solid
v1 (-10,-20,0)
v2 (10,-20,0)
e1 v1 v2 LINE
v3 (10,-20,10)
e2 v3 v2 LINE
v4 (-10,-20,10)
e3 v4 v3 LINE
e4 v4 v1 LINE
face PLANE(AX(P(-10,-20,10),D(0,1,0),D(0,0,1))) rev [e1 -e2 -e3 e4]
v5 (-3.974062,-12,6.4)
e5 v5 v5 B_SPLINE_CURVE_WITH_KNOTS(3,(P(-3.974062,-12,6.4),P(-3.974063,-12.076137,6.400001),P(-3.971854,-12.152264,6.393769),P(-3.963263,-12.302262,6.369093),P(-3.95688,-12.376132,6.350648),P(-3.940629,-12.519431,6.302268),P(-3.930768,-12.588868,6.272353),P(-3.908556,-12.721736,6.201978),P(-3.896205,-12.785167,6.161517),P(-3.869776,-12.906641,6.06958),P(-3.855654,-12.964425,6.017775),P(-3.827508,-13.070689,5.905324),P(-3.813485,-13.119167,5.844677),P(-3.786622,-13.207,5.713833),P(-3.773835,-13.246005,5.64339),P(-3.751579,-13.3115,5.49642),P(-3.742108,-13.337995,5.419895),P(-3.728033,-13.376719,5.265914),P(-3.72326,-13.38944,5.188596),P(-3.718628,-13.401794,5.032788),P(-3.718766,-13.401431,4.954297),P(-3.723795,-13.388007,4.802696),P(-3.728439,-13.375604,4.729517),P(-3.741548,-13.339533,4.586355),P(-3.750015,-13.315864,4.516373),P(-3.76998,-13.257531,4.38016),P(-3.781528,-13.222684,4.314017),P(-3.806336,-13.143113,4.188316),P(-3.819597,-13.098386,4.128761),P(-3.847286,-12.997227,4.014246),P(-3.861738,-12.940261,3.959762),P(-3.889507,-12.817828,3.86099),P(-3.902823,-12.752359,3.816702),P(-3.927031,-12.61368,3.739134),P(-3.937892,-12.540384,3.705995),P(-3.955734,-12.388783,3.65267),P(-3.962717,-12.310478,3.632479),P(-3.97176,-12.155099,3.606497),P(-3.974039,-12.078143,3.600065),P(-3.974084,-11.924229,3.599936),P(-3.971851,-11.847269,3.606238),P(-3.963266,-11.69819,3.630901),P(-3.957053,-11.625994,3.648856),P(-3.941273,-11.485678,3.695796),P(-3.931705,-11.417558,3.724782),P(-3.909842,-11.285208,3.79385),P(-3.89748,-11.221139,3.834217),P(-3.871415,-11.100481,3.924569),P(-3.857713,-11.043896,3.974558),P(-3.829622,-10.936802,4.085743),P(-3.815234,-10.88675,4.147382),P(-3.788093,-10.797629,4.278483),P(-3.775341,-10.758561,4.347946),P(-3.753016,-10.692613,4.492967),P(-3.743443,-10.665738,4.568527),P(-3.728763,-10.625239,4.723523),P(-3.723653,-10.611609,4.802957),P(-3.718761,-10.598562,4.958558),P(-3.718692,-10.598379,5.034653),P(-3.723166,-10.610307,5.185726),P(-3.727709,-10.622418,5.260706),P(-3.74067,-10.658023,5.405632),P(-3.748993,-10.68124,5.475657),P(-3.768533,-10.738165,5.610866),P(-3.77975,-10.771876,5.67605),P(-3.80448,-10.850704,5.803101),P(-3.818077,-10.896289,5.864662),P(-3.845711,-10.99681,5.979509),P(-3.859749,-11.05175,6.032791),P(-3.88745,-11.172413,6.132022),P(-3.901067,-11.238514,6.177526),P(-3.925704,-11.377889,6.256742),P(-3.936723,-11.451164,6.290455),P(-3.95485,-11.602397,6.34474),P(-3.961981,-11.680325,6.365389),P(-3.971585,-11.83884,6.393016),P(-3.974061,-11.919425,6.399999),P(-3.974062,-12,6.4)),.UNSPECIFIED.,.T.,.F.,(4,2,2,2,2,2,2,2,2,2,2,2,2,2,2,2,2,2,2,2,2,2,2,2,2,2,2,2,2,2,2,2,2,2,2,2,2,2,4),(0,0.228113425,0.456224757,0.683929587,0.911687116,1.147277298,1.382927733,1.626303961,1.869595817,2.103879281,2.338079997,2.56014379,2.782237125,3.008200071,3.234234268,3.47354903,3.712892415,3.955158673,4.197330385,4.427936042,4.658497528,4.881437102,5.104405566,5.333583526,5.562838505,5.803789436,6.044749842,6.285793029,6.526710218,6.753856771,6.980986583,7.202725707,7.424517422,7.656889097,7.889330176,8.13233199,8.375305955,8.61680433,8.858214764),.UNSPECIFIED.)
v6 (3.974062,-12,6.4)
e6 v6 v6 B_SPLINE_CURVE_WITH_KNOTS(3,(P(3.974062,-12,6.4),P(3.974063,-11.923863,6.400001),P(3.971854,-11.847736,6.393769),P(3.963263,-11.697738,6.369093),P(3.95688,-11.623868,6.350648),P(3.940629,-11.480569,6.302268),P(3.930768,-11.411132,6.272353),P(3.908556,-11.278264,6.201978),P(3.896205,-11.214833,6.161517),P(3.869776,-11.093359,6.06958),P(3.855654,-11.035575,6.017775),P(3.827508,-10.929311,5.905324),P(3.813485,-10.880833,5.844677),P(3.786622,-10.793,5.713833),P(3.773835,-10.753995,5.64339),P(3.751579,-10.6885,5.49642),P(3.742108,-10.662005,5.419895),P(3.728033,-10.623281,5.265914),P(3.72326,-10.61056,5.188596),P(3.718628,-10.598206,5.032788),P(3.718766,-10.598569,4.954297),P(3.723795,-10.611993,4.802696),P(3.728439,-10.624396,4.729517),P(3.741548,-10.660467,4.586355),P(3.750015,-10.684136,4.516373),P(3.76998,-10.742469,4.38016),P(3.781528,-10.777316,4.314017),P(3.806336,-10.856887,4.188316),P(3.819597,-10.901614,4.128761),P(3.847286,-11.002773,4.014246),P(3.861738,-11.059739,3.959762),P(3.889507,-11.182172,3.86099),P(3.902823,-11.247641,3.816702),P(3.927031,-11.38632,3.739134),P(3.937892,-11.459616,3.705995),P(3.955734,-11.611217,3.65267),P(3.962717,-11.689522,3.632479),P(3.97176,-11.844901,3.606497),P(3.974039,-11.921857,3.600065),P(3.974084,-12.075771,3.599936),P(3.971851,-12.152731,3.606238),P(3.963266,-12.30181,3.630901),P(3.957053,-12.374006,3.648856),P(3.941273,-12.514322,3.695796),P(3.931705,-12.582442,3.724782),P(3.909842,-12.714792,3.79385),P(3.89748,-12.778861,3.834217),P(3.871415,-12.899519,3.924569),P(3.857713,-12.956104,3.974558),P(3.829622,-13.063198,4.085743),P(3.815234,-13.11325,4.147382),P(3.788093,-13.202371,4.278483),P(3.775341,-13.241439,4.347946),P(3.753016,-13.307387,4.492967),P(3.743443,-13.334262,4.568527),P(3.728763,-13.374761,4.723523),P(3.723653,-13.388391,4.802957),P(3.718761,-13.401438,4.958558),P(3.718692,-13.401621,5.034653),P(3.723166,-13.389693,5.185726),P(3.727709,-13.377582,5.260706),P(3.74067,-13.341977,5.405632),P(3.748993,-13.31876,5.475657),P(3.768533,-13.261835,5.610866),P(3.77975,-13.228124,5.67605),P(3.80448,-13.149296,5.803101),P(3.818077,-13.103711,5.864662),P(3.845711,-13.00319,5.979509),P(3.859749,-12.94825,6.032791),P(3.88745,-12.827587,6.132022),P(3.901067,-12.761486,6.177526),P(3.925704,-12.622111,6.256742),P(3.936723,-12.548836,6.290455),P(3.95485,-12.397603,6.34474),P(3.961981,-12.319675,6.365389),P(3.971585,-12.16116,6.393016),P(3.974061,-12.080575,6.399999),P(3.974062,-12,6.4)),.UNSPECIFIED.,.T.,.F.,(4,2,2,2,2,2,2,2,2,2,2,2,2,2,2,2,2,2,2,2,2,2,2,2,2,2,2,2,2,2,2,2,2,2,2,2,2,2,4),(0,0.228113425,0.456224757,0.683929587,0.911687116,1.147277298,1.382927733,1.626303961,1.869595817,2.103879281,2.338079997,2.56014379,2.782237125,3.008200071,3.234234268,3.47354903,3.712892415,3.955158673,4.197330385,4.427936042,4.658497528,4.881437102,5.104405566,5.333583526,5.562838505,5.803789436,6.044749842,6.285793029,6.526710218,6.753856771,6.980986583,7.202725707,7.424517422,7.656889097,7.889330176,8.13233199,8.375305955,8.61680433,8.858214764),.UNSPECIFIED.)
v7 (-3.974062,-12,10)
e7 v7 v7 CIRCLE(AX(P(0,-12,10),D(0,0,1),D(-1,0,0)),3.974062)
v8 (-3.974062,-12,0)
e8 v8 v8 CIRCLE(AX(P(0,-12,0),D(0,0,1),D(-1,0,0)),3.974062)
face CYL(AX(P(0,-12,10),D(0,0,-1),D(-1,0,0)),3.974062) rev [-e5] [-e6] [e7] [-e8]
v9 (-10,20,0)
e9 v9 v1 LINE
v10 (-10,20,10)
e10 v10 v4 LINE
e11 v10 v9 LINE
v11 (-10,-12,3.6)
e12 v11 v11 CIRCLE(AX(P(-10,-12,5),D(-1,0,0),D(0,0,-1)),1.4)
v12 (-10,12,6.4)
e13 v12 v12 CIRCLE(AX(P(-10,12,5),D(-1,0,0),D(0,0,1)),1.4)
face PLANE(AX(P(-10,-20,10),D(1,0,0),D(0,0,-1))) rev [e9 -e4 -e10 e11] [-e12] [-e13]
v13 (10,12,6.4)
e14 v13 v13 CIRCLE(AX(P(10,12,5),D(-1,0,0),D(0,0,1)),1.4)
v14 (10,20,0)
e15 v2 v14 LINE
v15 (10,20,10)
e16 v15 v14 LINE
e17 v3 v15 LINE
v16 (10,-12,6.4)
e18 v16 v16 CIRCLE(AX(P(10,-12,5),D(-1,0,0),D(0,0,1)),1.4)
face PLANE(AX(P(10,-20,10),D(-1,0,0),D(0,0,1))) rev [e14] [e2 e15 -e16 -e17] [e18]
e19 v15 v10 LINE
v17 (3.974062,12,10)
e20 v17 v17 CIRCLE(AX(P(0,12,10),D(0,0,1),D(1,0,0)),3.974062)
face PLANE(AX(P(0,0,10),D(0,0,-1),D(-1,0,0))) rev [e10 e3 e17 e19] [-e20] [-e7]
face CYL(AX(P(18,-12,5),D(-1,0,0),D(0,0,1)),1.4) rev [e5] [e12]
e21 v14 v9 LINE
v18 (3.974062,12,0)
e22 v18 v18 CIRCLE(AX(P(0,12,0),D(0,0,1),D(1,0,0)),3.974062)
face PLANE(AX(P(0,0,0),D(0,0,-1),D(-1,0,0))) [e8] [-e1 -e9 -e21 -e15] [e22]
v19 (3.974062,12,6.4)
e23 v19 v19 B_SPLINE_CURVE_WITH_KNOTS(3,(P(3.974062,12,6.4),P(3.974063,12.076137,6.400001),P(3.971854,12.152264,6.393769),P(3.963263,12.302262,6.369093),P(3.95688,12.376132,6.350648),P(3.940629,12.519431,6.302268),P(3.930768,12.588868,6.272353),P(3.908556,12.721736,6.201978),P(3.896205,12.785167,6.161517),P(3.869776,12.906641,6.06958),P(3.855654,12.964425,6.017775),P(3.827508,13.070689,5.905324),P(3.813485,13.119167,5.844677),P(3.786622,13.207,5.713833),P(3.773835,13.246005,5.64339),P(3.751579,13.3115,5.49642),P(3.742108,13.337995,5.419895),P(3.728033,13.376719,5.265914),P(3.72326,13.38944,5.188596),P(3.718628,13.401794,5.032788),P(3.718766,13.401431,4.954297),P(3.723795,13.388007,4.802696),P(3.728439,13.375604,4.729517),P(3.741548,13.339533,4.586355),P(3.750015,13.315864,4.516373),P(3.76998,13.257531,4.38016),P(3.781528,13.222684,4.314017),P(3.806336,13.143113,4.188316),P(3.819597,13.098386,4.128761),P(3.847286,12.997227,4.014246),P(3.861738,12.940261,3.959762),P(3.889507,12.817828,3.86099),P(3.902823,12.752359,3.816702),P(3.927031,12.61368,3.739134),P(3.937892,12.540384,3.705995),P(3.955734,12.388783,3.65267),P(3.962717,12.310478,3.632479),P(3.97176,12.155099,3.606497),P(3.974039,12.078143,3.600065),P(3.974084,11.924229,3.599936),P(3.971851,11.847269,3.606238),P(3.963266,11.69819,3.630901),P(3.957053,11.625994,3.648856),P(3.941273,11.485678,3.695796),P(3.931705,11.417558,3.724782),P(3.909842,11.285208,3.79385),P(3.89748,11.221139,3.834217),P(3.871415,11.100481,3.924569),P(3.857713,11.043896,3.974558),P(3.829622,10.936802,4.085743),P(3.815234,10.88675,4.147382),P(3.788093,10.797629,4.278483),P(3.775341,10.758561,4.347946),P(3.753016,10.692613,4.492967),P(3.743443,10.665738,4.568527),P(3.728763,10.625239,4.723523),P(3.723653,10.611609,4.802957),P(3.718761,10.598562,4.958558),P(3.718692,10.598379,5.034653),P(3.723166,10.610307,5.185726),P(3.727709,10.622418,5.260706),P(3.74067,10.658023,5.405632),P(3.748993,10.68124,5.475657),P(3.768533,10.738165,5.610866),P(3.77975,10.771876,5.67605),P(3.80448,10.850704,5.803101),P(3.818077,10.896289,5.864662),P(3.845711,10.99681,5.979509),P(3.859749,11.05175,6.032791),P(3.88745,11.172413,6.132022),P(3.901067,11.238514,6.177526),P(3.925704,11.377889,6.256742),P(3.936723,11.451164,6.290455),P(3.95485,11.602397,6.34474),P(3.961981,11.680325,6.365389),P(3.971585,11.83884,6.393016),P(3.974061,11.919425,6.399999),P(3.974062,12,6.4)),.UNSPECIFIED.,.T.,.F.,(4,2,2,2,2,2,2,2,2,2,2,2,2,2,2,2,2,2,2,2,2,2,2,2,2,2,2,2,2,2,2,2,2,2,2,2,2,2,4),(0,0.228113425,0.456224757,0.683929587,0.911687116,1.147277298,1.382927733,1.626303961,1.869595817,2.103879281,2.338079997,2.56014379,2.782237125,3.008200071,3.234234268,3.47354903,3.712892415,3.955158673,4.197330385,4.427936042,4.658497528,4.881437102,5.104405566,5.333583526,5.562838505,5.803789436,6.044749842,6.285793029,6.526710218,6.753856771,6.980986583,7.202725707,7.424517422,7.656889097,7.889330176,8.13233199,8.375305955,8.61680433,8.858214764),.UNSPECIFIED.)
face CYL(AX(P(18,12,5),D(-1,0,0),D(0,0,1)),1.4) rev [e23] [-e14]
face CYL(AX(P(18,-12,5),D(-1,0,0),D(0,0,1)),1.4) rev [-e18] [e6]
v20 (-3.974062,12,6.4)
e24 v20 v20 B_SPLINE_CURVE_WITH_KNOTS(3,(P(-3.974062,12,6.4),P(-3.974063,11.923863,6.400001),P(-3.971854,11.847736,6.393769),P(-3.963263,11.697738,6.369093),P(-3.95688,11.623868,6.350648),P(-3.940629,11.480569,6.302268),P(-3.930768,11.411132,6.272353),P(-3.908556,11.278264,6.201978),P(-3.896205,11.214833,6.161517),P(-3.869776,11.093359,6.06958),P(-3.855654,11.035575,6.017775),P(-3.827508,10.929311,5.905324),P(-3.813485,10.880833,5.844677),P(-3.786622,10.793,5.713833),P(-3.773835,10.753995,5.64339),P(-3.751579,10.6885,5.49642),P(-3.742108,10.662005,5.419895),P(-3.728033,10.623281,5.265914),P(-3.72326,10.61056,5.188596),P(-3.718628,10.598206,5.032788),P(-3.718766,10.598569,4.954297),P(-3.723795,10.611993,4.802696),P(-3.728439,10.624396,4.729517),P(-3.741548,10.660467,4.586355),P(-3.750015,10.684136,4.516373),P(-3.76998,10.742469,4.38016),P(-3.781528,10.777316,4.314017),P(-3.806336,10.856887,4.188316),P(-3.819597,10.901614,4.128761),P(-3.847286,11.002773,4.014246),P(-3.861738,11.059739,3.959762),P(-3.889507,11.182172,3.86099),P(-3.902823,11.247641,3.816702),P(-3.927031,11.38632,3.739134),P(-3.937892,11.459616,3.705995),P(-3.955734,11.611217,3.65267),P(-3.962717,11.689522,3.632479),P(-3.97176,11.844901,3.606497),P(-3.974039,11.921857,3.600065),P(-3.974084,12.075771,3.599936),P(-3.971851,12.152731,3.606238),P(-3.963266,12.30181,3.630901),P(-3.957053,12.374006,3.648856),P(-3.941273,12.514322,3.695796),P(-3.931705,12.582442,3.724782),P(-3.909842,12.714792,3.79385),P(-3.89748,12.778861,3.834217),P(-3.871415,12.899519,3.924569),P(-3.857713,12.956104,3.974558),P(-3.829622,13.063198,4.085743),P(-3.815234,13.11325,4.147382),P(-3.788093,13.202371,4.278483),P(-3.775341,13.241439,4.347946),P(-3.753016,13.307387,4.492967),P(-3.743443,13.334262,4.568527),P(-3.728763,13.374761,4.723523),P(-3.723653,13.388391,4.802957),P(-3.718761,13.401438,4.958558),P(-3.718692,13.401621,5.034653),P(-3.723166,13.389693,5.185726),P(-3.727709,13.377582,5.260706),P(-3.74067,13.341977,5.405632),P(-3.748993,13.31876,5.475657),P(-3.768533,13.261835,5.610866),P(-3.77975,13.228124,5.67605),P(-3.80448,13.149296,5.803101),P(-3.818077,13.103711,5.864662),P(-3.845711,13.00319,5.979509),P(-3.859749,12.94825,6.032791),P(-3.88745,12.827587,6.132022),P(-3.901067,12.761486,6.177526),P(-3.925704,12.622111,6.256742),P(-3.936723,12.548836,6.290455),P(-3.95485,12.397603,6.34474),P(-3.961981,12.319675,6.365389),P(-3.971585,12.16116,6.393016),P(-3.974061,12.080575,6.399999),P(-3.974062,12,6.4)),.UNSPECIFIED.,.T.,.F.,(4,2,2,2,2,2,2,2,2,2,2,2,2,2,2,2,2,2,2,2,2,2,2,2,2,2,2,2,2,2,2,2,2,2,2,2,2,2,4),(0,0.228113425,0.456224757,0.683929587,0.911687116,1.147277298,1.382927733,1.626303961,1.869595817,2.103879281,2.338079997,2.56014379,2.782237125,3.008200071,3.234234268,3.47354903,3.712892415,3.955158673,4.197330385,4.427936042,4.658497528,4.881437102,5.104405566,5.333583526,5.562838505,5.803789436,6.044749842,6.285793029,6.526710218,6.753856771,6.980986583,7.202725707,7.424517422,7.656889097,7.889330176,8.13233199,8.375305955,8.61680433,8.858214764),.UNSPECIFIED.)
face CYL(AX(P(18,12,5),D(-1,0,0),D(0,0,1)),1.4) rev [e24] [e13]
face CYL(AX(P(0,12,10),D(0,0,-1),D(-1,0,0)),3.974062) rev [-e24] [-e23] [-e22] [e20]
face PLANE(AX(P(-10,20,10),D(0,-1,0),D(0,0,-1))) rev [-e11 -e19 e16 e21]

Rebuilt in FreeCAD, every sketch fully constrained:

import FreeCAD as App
import Part
import Sketcher

V = App.Vector
Q = App.Units.Quantity


def add_polygon(sketch, points):
    """Adds a closed chain of lines whose ends are joined by coincident constraints."""
    first, n = sketch.GeometryCount, len(points)
    for a, b in zip(points, points[1:] + points[:1]):
        sketch.addGeometry(Part.LineSegment(App.Vector(*a, 0), App.Vector(*b, 0)), False)
    for i in range(n):
        sketch.addConstraint(Sketcher.Constraint("Coincident", first + i, 2, first + (i + 1) % n, 1))

doc = App.newDocument("Part")
body = doc.addObject("PartDesign::Body", "Body")

# Sketch on XY plane
sketch1 = doc.addObject("Sketcher::SketchObject", "Sketch")
body.addObject(sketch1)
sketch1.AttachmentSupport = (doc.XY_Plane, [""])
sketch1.MapMode = "FlatFace"
add_polygon(sketch1, [(-10, 20), (-10, -20), (10, -20), (10, 20)])  # lines 0-3
sketch1.addGeometry(Part.Circle(V(0, -12, 0), V(0, 0, 1), 3.974062), False)  # 4
sketch1.addGeometry(Part.Circle(V(0, 12, 0), V(0, 0, 1), 3.974062), False)  # 5
sketch1.addConstraint([
    Sketcher.Constraint("Vertical", 0),
    Sketcher.Constraint("Horizontal", 1),
    Sketcher.Constraint("Vertical", 2),
    Sketcher.Constraint("Horizontal", 3),
    Sketcher.Constraint("Equal", 4, 5),
    Sketcher.Constraint("Symmetric", 4, 3, 5, 3, -1, 1),
    Sketcher.Constraint("Symmetric", 0, 2, 2, 2, -1, 1),
    Sketcher.Constraint("PointOnObject", 4, 3, -2),
    Sketcher.Constraint("DistanceX", 1, 1, 1, 2, Q("20 mm")),
    Sketcher.Constraint("DistanceY", 0, 2, 0, 1, Q("40 mm")),
    Sketcher.Constraint("DistanceY", 4, 3, -1, 1, Q("12 mm")),
    Sketcher.Constraint("Diameter", 4, Q("7.948124 mm")),
])
pad1 = doc.addObject("PartDesign::Pad", "Pad")
body.addObject(pad1)
pad1.Profile = sketch1
pad1.Length = 10

# Sketch on YZ plane
sketch2 = doc.addObject("Sketcher::SketchObject", "Sketch001")
body.addObject(sketch2)
sketch2.AttachmentSupport = (doc.YZ_Plane, [""])
sketch2.MapMode = "FlatFace"
sketch2.AttachmentOffset = App.Placement(V(0, 0, -10), App.Rotation())
sketch2.addGeometry([
    Part.Circle(V(12, 5, 0), V(0, 0, 1), 1.4),
    Part.Circle(V(-12, 5, 0), V(0, 0, 1), 1.4),
], False)
sketch2.addConstraint([
    Sketcher.Constraint("Equal", 0, 1),
    Sketcher.Constraint("Symmetric", 0, 3, 1, 3, -2),
    Sketcher.Constraint("Diameter", 0, Q("2.8 mm")),
    Sketcher.Constraint("DistanceX", -1, 1, 0, 3, Q("12 mm")),
    Sketcher.Constraint("DistanceY", -1, 1, 0, 3, Q("5 mm")),
])
pocket1 = doc.addObject("PartDesign::Pocket", "Pocket")
body.addObject(pocket1)
pocket1.Profile = sketch2
pocket1.Length = 28
pocket1.Reversed = True

doc.recompute()
